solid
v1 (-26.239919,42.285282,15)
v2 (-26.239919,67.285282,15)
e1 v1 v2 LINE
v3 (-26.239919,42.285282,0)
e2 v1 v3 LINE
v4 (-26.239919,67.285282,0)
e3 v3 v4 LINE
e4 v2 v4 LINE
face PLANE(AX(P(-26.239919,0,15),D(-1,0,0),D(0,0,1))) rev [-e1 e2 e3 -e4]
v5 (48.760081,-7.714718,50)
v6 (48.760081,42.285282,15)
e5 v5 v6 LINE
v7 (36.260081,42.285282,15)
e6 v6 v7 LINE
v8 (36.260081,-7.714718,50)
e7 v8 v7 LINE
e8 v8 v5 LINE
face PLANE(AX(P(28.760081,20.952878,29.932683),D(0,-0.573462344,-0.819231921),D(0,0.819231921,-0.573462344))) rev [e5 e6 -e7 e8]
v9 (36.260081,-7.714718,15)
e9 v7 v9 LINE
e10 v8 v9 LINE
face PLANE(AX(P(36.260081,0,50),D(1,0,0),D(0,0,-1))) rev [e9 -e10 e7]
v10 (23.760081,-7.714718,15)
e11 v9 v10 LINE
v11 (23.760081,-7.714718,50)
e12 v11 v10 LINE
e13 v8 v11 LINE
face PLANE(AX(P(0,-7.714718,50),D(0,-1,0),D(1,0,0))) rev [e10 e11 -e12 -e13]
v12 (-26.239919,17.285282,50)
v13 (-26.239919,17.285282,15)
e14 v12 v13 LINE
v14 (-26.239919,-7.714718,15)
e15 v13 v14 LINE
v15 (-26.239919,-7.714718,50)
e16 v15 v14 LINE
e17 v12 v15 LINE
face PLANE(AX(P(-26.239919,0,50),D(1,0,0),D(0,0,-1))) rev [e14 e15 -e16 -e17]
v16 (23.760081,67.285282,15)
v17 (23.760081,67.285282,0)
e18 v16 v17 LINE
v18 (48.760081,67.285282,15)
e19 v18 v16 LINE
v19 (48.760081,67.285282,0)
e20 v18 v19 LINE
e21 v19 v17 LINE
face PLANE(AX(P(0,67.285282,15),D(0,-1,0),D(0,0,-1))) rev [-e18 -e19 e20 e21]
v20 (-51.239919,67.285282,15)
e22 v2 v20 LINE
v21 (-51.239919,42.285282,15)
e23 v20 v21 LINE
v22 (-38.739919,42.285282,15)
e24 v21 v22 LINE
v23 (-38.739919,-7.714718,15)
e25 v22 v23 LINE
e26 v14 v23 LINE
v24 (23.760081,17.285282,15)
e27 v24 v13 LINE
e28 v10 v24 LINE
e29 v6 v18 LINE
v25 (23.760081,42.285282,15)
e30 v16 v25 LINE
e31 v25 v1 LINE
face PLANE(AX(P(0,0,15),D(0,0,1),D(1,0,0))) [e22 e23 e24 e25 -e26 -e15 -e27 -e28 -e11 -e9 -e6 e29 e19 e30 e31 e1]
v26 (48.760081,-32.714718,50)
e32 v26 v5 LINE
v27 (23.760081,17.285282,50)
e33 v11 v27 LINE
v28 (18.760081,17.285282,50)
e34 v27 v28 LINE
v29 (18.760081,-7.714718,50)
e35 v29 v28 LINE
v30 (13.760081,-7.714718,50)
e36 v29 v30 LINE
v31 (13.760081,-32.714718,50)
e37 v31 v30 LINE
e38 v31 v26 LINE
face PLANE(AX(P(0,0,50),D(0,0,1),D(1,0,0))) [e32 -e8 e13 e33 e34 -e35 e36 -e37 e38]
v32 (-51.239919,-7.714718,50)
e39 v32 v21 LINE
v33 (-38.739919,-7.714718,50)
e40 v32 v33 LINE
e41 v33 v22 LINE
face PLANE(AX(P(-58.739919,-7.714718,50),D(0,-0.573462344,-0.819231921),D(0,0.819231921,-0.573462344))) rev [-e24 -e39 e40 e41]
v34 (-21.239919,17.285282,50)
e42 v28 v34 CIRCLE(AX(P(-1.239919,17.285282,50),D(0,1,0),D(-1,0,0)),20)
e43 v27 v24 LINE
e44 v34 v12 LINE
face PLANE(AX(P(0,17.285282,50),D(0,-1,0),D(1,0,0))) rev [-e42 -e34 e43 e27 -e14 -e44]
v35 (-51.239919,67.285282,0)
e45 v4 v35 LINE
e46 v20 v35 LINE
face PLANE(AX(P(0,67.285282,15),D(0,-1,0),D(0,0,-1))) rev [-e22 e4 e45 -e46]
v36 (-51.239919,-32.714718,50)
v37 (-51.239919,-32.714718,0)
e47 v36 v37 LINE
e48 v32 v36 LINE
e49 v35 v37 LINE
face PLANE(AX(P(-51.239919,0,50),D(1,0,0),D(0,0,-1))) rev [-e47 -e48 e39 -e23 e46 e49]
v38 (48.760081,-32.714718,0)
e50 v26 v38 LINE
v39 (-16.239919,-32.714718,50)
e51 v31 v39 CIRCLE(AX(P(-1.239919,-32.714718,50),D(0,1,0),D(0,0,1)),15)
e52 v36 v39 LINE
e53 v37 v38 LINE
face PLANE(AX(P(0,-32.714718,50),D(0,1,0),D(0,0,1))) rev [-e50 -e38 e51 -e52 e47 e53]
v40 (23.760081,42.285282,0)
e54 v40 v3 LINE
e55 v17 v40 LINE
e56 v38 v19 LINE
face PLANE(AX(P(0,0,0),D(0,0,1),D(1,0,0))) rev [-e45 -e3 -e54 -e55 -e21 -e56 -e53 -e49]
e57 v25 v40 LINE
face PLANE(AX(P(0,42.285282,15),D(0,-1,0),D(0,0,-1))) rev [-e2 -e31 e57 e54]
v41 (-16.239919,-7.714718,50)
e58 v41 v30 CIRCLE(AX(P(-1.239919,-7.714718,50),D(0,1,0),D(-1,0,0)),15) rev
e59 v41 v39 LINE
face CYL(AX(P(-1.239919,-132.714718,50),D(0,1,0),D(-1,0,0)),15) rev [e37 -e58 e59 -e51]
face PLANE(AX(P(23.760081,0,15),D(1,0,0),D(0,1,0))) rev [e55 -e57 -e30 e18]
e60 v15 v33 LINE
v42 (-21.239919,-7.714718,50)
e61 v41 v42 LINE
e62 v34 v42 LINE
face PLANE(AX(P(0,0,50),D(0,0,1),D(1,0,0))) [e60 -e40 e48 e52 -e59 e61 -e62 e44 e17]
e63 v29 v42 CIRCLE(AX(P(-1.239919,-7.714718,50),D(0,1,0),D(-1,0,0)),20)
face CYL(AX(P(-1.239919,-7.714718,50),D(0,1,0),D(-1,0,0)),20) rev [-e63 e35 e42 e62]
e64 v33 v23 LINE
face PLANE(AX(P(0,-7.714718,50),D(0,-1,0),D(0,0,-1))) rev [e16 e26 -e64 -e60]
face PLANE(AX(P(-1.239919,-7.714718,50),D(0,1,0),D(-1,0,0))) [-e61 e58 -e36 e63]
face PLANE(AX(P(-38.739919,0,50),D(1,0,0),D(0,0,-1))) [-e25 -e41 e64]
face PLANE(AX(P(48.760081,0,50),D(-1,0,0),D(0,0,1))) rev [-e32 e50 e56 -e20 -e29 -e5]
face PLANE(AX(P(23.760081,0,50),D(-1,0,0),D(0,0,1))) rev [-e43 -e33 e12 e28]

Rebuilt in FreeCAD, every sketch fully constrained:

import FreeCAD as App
import Part
import Sketcher

doc = App.newDocument("Part")
params = doc.addObject("Spreadsheet::Sheet", "Params")
for row, (alias, value) in enumerate([
    ("sketch1_width", "100 mm"),
    ("sketch1_width2", "50 mm"),
    ("sketch1_height", "75 mm"),
    ("sketch1_height2", "25 mm"),
    ("pad1_length", "50 mm"),
    ("sketch2_width", "50 mm"),
    ("sketch2_width2", "25 mm"),
    ("pad2_length", "15 mm"),
    ("sketch3_diameter", "30 mm"),
    ("pocket1_length", "150 mm"),
    ("sketch4_diameter", "40 mm"),
    ("sketch4_diameter2", "30 mm"),
    ("pocket2_length", "25 mm"),
    ("sketch5_width", "50 mm"),
    ("sketch5_height", "35 mm"),
    ("pocket3_length", "20 mm"),
    ("sketch6_width", "50 mm"),
    ("sketch6_height", "35 mm"),
    ("pocket4_length", "20 mm"),
], start=1):
    params.set(f"A{row}", alias)
    params.set(f"B{row}", "=" + value)
    params.setAlias(f"B{row}", alias)

body = doc.addObject("PartDesign::Body", "Body")

# Sketch on XY plane
sketch1 = doc.addObject("Sketcher::SketchObject", "Sketch")
body.addObject(sketch1)
sketch1.AttachmentSupport = (doc.XY_Plane, [""])
sketch1.MapMode = "FlatFace"
sketch1.addGeometry(Part.LineSegment(App.Vector(-26, -8, 0), App.Vector(-39, -8, 0)), False)
sketch1.addGeometry(Part.LineSegment(App.Vector(-39, -8, 0), App.Vector(-39, 42, 0)), False)
sketch1.addGeometry(Part.LineSegment(App.Vector(-39, 42, 0), App.Vector(-51, 42, 0)), False)
sketch1.addGeometry(Part.LineSegment(App.Vector(-51, 42, 0), App.Vector(-51, -33, 0)), False)
sketch1.addGeometry(Part.LineSegment(App.Vector(-51, -33, 0), App.Vector(49, -33, 0)), False)
sketch1.addGeometry(Part.LineSegment(App.Vector(49, -33, 0), App.Vector(49, 42, 0)), False)
sketch1.addGeometry(Part.LineSegment(App.Vector(49, 42, 0), App.Vector(36, 42, 0)), False)
sketch1.addGeometry(Part.LineSegment(App.Vector(36, 42, 0), App.Vector(36, -8, 0)), False)
sketch1.addGeometry(Part.LineSegment(App.Vector(36, -8, 0), App.Vector(24, -8, 0)), False)
sketch1.addGeometry(Part.LineSegment(App.Vector(24, -8, 0), App.Vector(24, 17, 0)), False)
sketch1.addGeometry(Part.LineSegment(App.Vector(24, 17, 0), App.Vector(-26, 17, 0)), False)
sketch1.addGeometry(Part.LineSegment(App.Vector(-26, 17, 0), App.Vector(-26, -8, 0)), False)
sketch1.addConstraint(Sketcher.Constraint("Coincident", 0, 2, 1, 1))
sketch1.addConstraint(Sketcher.Constraint("Coincident", 1, 2, 2, 1))
sketch1.addConstraint(Sketcher.Constraint("Coincident", 2, 2, 3, 1))
sketch1.addConstraint(Sketcher.Constraint("Coincident", 3, 2, 4, 1))
sketch1.addConstraint(Sketcher.Constraint("Coincident", 4, 2, 5, 1))
sketch1.addConstraint(Sketcher.Constraint("Coincident", 5, 2, 6, 1))
sketch1.addConstraint(Sketcher.Constraint("Coincident", 6, 2, 7, 1))
sketch1.addConstraint(Sketcher.Constraint("Coincident", 7, 2, 8, 1))
sketch1.addConstraint(Sketcher.Constraint("Coincident", 8, 2, 9, 1))
sketch1.addConstraint(Sketcher.Constraint("Coincident", 9, 2, 10, 1))
sketch1.addConstraint(Sketcher.Constraint("Coincident", 10, 2, 11, 1))
sketch1.addConstraint(Sketcher.Constraint("Coincident", 11, 2, 0, 1))
sketch1.addConstraint(Sketcher.Constraint("Horizontal", 0))
sketch1.addConstraint(Sketcher.Constraint("Vertical", 1))
sketch1.addConstraint(Sketcher.Constraint("Horizontal", 2))
sketch1.addConstraint(Sketcher.Constraint("Vertical", 3))
sketch1.addConstraint(Sketcher.Constraint("Horizontal", 4))
sketch1.addConstraint(Sketcher.Constraint("Vertical", 5))
sketch1.addConstraint(Sketcher.Constraint("Horizontal", 6))
sketch1.addConstraint(Sketcher.Constraint("Vertical", 7))
sketch1.addConstraint(Sketcher.Constraint("Horizontal", 8))
sketch1.addConstraint(Sketcher.Constraint("Vertical", 9))
sketch1.addConstraint(Sketcher.Constraint("Horizontal", 10))
sketch1.addConstraint(Sketcher.Constraint("Vertical", 11))
sketch1.addConstraint(Sketcher.Constraint("Horizontal", 2, 2, 5, 2))
sketch1.addConstraint(Sketcher.Constraint("Horizontal", 0, 2, 7, 2))
sketch1.addConstraint(Sketcher.Constraint("Equal", 0, 2))
sketch1.addConstraint(Sketcher.Constraint("Equal", 2, 6))
sketch1.addConstraint(Sketcher.Constraint("Equal", 6, 8))
sketch1.addConstraint(Sketcher.Constraint("Equal", 10, 1))
sketch1.addConstraint(Sketcher.Constraint("DistanceX", 4, 1, 4, 2, 100.0))
sketch1.addConstraint(Sketcher.Constraint("DistanceX", 10, 2, 10, 1, 50.0))
sketch1.addConstraint(Sketcher.Constraint("DistanceY", 3, 2, 3, 1, 75.0))
sketch1.addConstraint(Sketcher.Constraint("DistanceY", 9, 1, 9, 2, 25.0))
sketch1.addConstraint(Sketcher.Constraint("DistanceX", 0, 2, -1, 1, 38.739919))
sketch1.addConstraint(Sketcher.Constraint("DistanceY", 0, 2, -1, 1, 7.714718))
sketch1.setExpression("Constraints[30]", "Params.sketch1_width")
sketch1.setExpression("Constraints[31]", "Params.sketch1_width2")
sketch1.setExpression("Constraints[32]", "Params.sketch1_height")
sketch1.setExpression("Constraints[33]", "Params.sketch1_height2")
pad1 = doc.addObject("PartDesign::Pad", "Pad")
body.addObject(pad1)
pad1.Profile = sketch1
pad1.setExpression("Length", "Params.pad1_length")

# Sketch on XY plane
sketch2 = doc.addObject("Sketcher::SketchObject", "Sketch001")
body.addObject(sketch2)
sketch2.AttachmentSupport = (doc.XY_Plane, [""])
sketch2.MapMode = "FlatFace"
sketch2.addGeometry(Part.LineSegment(App.Vector(-39, 42, 0), App.Vector(-39, -8, 0)), False)
sketch2.addGeometry(Part.LineSegment(App.Vector(-39, -8, 0), App.Vector(-26, -8, 0)), False)
sketch2.addGeometry(Part.LineSegment(App.Vector(-26, -8, 0), App.Vector(-26, 17, 0)), False)
sketch2.addGeometry(Part.LineSegment(App.Vector(-26, 17, 0), App.Vector(24, 17, 0)), False)
sketch2.addGeometry(Part.LineSegment(App.Vector(24, 17, 0), App.Vector(24, -8, 0)), False)
sketch2.addGeometry(Part.LineSegment(App.Vector(24, -8, 0), App.Vector(36, -8, 0)), False)
sketch2.addGeometry(Part.LineSegment(App.Vector(36, -8, 0), App.Vector(36, 42, 0)), False)
sketch2.addGeometry(Part.LineSegment(App.Vector(36, 42, 0), App.Vector(49, 42, 0)), False)
sketch2.addGeometry(Part.LineSegment(App.Vector(49, 42, 0), App.Vector(49, 67, 0)), False)
sketch2.addGeometry(Part.LineSegment(App.Vector(49, 67, 0), App.Vector(24, 67, 0)), False)
sketch2.addGeometry(Part.LineSegment(App.Vector(24, 67, 0), App.Vector(24, 42, 0)), False)
sketch2.addGeometry(Part.LineSegment(App.Vector(24, 42, 0), App.Vector(-26, 42, 0)), False)
sketch2.addGeometry(Part.LineSegment(App.Vector(-26, 42, 0), App.Vector(-26, 67, 0)), False)
sketch2.addGeometry(Part.LineSegment(App.Vector(-26, 67, 0), App.Vector(-51, 67, 0)), False)
sketch2.addGeometry(Part.LineSegment(App.Vector(-51, 67, 0), App.Vector(-51, 42, 0)), False)
sketch2.addGeometry(Part.LineSegment(App.Vector(-51, 42, 0), App.Vector(-39, 42, 0)), False)
sketch2.addConstraint(Sketcher.Constraint("Coincident", 0, 2, 1, 1))
sketch2.addConstraint(Sketcher.Constraint("Coincident", 1, 2, 2, 1))
sketch2.addConstraint(Sketcher.Constraint("Coincident", 2, 2, 3, 1))
sketch2.addConstraint(Sketcher.Constraint("Coincident", 3, 2, 4, 1))
sketch2.addConstraint(Sketcher.Constraint("Coincident", 4, 2, 5, 1))
sketch2.addConstraint(Sketcher.Constraint("Coincident", 5, 2, 6, 1))
sketch2.addConstraint(Sketcher.Constraint("Coincident", 6, 2, 7, 1))
sketch2.addConstraint(Sketcher.Constraint("Coincident", 7, 2, 8, 1))
sketch2.addConstraint(Sketcher.Constraint("Coincident", 8, 2, 9, 1))
sketch2.addConstraint(Sketcher.Constraint("Coincident", 9, 2, 10, 1))
sketch2.addConstraint(Sketcher.Constraint("Coincident", 10, 2, 11, 1))
sketch2.addConstraint(Sketcher.Constraint("Coincident", 11, 2, 12, 1))
sketch2.addConstraint(Sketcher.Constraint("Coincident", 12, 2, 13, 1))
sketch2.addConstraint(Sketcher.Constraint("Coincident", 13, 2, 14, 1))
sketch2.addConstraint(Sketcher.Constraint("Coincident", 14, 2, 15, 1))
sketch2.addConstraint(Sketcher.Constraint("Coincident", 15, 2, 0, 1))
sketch2.addConstraint(Sketcher.Constraint("Vertical", 0))
sketch2.addConstraint(Sketcher.Constraint("Horizontal", 1))
sketch2.addConstraint(Sketcher.Constraint("Vertical", 2))
sketch2.addConstraint(Sketcher.Constraint("Horizontal", 3))
sketch2.addConstraint(Sketcher.Constraint("Vertical", 4))
sketch2.addConstraint(Sketcher.Constraint("Horizontal", 5))
sketch2.addConstraint(Sketcher.Constraint("Vertical", 6))
sketch2.addConstraint(Sketcher.Constraint("Horizontal", 7))
sketch2.addConstraint(Sketcher.Constraint("Vertical", 8))
sketch2.addConstraint(Sketcher.Constraint("Horizontal", 9))
sketch2.addConstraint(Sketcher.Constraint("Vertical", 10))
sketch2.addConstraint(Sketcher.Constraint("Horizontal", 11))
sketch2.addConstraint(Sketcher.Constraint("Vertical", 12))
sketch2.addConstraint(Sketcher.Constraint("Horizontal", 13))
sketch2.addConstraint(Sketcher.Constraint("Vertical", 14))
sketch2.addConstraint(Sketcher.Constraint("Horizontal", 15))
sketch2.addConstraint(Sketcher.Constraint("Horizontal", 1, 2, 4, 2))
sketch2.addConstraint(Sketcher.Constraint("Horizontal", 7, 2, 10, 2))
sketch2.addConstraint(Sketcher.Constraint("Horizontal", 9, 2, 12, 2))
sketch2.addConstraint(Sketcher.Constraint("Horizontal", 11, 2, 14, 2))
sketch2.addConstraint(Sketcher.Constraint("Vertical", 4, 2, 9, 2))
sketch2.addConstraint(Sketcher.Constraint("Vertical", 2, 2, 11, 2))
sketch2.addConstraint(Sketcher.Constraint("Equal", 1, 5))
sketch2.addConstraint(Sketcher.Constraint("Equal", 5, 7))
sketch2.addConstraint(Sketcher.Constraint("Equal", 9, 13))
sketch2.addConstraint(Sketcher.Constraint("Equal", 11, 0))
sketch2.addConstraint(Sketcher.Constraint("Equal", 13, 2))
sketch2.addConstraint(Sketcher.Constraint("Equal", 4, 8))
sketch2.addConstraint(Sketcher.Constraint("DistanceX", 3, 1, 3, 2, 50.0))
sketch2.addConstraint(Sketcher.Constraint("DistanceX", 9, 2, 9, 1, 25.0))
sketch2.addConstraint(Sketcher.Constraint("DistanceX", 0, 2, -1, 1, 38.739919))
sketch2.addConstraint(Sketcher.Constraint("DistanceY", 0, 2, -1, 1, 7.714718))
sketch2.setExpression("Constraints[44]", "Params.sketch2_width")
sketch2.setExpression("Constraints[45]", "Params.sketch2_width2")
pad2 = doc.addObject("PartDesign::Pad", "Pad001")
body.addObject(pad2)
pad2.Profile = sketch2
pad2.setExpression("Length", "Params.pad2_length")

# Sketch on XZ plane
sketch3 = doc.addObject("Sketcher::SketchObject", "Sketch002")
body.addObject(sketch3)
sketch3.AttachmentSupport = (doc.XZ_Plane, [""])
sketch3.MapMode = "FlatFace"
sketch3.AttachmentOffset = App.Placement(App.Vector(0, 0, -17.285282), App.Rotation())
sketch3.addGeometry(Part.Circle(App.Vector(-1, 50, 0), App.Vector(0, 0, 1), 15), False)
sketch3.addConstraint(Sketcher.Constraint("Diameter", 0, 30.0))
sketch3.addConstraint(Sketcher.Constraint("DistanceY", -1, 1, 0, 3, 50.0))
sketch3.addConstraint(Sketcher.Constraint("DistanceX", 0, 3, -1, 1, 1.239919))
sketch3.setExpression("Constraints[0]", "Params.sketch3_diameter")
pocket1 = doc.addObject("PartDesign::Pocket", "Pocket")
body.addObject(pocket1)
pocket1.Profile = sketch3
pocket1.setExpression("Length", "Params.pocket1_length")
pocket1.Reversed = True

# Sketch on XZ plane
sketch4 = doc.addObject("Sketcher::SketchObject", "Sketch003")
body.addObject(sketch4)
sketch4.AttachmentSupport = (doc.XZ_Plane, [""])
sketch4.MapMode = "FlatFace"
sketch4.AttachmentOffset = App.Placement(App.Vector(0, 0, -17.285282), App.Rotation())
sketch4.addGeometry(Part.Circle(App.Vector(-1, 50, 0), App.Vector(0, 0, 1), 20), False)
sketch4.addGeometry(Part.Circle(App.Vector(-1, 50, 0), App.Vector(0, 0, 1), 15), False)
sketch4.addConstraint(Sketcher.Constraint("Coincident", 1, 3, 0, 3))
sketch4.addConstraint(Sketcher.Constraint("Diameter", 0, 40.0))
sketch4.addConstraint(Sketcher.Constraint("Diameter", 1, 30.0))
sketch4.addConstraint(Sketcher.Constraint("DistanceY", -1, 1, 0, 3, 50.0))
sketch4.addConstraint(Sketcher.Constraint("DistanceX", 0, 3, -1, 1, 1.239919))
sketch4.setExpression("Constraints[1]", "Params.sketch4_diameter")
sketch4.setExpression("Constraints[2]", "Params.sketch4_diameter2")
pocket2 = doc.addObject("PartDesign::Pocket", "Pocket001")
body.addObject(pocket2)
pocket2.Profile = sketch4
pocket2.setExpression("Length", "Params.pocket2_length")
pocket2.Reversed = True

# Sketch on YZ plane
sketch5 = doc.addObject("Sketcher::SketchObject", "Sketch004")
body.addObject(sketch5)
sketch5.AttachmentSupport = (doc.YZ_Plane, [""])
sketch5.MapMode = "FlatFace"
sketch5.AttachmentOffset = App.Placement(App.Vector(0, 0, 48.760081), App.Rotation())
sketch5.addGeometry(Part.LineSegment(App.Vector(42, 50, 0), App.Vector(-8, 50, 0)), False)
sketch5.addGeometry(Part.LineSegment(App.Vector(-8, 50, 0), App.Vector(42, 15, 0)), False)
sketch5.addGeometry(Part.LineSegment(App.Vector(42, 15, 0), App.Vector(42, 50, 0)), False)
sketch5.addConstraint(Sketcher.Constraint("Coincident", 0, 2, 1, 1))
sketch5.addConstraint(Sketcher.Constraint("Coincident", 1, 2, 2, 1))
sketch5.addConstraint(Sketcher.Constraint("Coincident", 2, 2, 0, 1))
sketch5.addConstraint(Sketcher.Constraint("Horizontal", 0))
sketch5.addConstraint(Sketcher.Constraint("Vertical", 2))
sketch5.addConstraint(Sketcher.Constraint("DistanceX", 0, 2, 0, 1, 50.0))
sketch5.addConstraint(Sketcher.Constraint("DistanceY", 2, 1, 2, 2, 35.0))
sketch5.addConstraint(Sketcher.Constraint("DistanceY", -1, 1, 0, 2, 50.0))
sketch5.addConstraint(Sketcher.Constraint("DistanceX", 0, 2, -1, 1, 7.714718))
sketch5.setExpression("Constraints[5]", "Params.sketch5_width")
sketch5.setExpression("Constraints[6]", "Params.sketch5_height")
pocket3 = doc.addObject("PartDesign::Pocket", "Pocket002")
body.addObject(pocket3)
pocket3.Profile = sketch5
pocket3.setExpression("Length", "Params.pocket3_length")

# Sketch on YZ plane
sketch6 = doc.addObject("Sketcher::SketchObject", "Sketch005")
body.addObject(sketch6)
sketch6.AttachmentSupport = (doc.YZ_Plane, [""])
sketch6.MapMode = "FlatFace"
sketch6.AttachmentOffset = App.Placement(App.Vector(0, 0, -38.739919), App.Rotation())
sketch6.addGeometry(Part.LineSegment(App.Vector(-8, 50, 0), App.Vector(42, 15, 0)), False)
sketch6.addGeometry(Part.LineSegment(App.Vector(42, 15, 0), App.Vector(42, 50, 0)), False)
sketch6.addGeometry(Part.LineSegment(App.Vector(42, 50, 0), App.Vector(-8, 50, 0)), False)
sketch6.addConstraint(Sketcher.Constraint("Coincident", 0, 2, 1, 1))
sketch6.addConstraint(Sketcher.Constraint("Coincident", 1, 2, 2, 1))
sketch6.addConstraint(Sketcher.Constraint("Coincident", 2, 2, 0, 1))
sketch6.addConstraint(Sketcher.Constraint("Vertical", 1))
sketch6.addConstraint(Sketcher.Constraint("Horizontal", 2))
sketch6.addConstraint(Sketcher.Constraint("DistanceX", 2, 2, 2, 1, 50.0))
sketch6.addConstraint(Sketcher.Constraint("DistanceY", 1, 1, 1, 2, 35.0))
sketch6.addConstraint(Sketcher.Constraint("DistanceY", -1, 1, 0, 2, 15.0))
sketch6.addConstraint(Sketcher.Constraint("DistanceX", -1, 1, 0, 2, 42.285282))
sketch6.setExpression("Constraints[5]", "Params.sketch6_width")
sketch6.setExpression("Constraints[6]", "Params.sketch6_height")
pocket4 = doc.addObject("PartDesign::Pocket", "Pocket003")
body.addObject(pocket4)
pocket4.Profile = sketch6
pocket4.setExpression("Length", "Params.pocket4_length")

doc.recompute()
